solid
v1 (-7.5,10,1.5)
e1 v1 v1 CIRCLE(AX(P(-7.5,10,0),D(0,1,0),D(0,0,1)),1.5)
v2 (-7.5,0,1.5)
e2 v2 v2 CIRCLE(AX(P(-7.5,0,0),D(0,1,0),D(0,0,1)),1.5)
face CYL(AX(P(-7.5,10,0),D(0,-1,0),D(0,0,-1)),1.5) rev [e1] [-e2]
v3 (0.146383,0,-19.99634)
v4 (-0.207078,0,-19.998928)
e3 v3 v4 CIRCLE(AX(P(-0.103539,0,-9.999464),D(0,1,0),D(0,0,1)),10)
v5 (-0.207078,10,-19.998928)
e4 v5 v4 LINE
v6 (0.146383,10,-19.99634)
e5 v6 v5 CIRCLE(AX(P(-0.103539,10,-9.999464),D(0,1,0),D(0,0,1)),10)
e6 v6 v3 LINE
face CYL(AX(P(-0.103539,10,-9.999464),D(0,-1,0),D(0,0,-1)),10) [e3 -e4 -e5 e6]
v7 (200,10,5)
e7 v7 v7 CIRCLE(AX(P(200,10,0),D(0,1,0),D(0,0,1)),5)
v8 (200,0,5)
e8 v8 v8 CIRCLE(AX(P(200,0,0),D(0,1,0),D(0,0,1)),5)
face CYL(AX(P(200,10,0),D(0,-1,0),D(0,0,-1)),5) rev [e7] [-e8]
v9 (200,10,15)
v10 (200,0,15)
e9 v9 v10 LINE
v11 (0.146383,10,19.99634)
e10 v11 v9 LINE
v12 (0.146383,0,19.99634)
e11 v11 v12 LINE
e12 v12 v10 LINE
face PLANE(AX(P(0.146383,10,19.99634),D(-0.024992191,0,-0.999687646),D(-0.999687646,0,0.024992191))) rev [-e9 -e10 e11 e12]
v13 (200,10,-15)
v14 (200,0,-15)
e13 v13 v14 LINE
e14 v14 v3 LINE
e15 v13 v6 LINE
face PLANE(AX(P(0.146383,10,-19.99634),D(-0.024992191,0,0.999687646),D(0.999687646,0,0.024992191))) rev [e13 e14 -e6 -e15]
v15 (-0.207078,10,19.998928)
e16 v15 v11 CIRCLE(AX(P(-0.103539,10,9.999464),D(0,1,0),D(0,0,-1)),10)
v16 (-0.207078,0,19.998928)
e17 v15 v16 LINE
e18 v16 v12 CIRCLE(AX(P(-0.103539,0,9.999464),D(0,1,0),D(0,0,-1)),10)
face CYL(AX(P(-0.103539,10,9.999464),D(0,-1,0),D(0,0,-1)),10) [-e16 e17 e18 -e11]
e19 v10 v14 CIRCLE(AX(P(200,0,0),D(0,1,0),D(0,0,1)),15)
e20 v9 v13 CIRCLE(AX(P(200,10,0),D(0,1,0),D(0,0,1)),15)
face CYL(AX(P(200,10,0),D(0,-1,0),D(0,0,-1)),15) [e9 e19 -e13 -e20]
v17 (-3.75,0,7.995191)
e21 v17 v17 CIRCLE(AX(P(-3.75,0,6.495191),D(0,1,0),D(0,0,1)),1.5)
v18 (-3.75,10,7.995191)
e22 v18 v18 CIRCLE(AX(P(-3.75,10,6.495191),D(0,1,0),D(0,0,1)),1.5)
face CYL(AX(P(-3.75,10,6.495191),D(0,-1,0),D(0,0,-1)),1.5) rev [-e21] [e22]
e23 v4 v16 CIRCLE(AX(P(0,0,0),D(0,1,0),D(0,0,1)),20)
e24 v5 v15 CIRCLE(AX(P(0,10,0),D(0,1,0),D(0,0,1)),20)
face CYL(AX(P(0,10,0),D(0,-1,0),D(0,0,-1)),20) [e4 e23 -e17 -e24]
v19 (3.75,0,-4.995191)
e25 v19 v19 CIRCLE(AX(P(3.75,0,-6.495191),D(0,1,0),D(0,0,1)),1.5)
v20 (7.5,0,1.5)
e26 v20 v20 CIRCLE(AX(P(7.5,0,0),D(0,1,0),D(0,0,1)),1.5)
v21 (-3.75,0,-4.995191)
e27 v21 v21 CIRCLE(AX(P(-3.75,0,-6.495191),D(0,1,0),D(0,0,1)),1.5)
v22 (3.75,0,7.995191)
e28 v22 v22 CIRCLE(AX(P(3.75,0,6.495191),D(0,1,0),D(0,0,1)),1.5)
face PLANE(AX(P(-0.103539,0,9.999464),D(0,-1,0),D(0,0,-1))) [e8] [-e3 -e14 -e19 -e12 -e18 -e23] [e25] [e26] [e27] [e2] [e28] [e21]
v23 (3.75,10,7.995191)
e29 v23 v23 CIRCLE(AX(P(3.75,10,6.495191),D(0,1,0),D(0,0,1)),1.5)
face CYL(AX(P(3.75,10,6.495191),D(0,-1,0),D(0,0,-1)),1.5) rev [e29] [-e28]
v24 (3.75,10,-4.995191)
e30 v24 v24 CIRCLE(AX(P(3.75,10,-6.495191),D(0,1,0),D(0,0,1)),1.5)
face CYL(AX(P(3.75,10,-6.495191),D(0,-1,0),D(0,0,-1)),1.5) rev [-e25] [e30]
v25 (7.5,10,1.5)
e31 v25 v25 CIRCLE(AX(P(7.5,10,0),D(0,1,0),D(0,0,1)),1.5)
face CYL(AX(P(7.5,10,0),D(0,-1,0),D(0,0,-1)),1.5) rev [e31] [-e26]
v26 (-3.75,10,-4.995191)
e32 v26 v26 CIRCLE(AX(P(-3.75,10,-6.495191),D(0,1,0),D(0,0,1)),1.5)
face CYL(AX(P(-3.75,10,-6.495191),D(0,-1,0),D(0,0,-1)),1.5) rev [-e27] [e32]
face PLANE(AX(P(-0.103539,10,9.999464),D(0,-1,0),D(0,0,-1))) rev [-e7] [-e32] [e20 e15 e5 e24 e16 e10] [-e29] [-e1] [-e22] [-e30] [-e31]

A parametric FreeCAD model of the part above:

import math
import FreeCAD as App
import Part
import Sketcher
from FreeCAD import Vector

doc = App.newDocument("Part")
params = doc.addObject("Spreadsheet::Sheet", "Params")
for row, (alias, value) in enumerate([
    ("sketch1_diameter", "3 mm"),
    ("sketch1_diameter2", "10 mm"),
    ("sketch1_radius", "20 mm"),
    ("sketch1_radius2", "15 mm"),
    ("pad1_length", "10 mm"),
], start=1):
    params.set(f"A{row}", alias)
    params.set(f"B{row}", "=" + value)
    params.setAlias(f"B{row}", alias)

body = doc.addObject("PartDesign::Body", "Body")

# Sketch on XZ plane
sketch1 = doc.addObject("Sketcher::SketchObject", "Sketch")
body.addObject(sketch1)
sketch1.AttachmentSupport = (doc.XZ_Plane, [""])
sketch1.MapMode = "FlatFace"
sketch1.addGeometry(Part.LineSegment(Vector(200, -15, 0), Vector(0.15, -20, 0)), False)
sketch1.addGeometry(Part.ArcOfCircle(Part.Circle(Vector(-0.1, -10, 0), Vector(0, 0, 1), 10), math.radians(-90.59), math.radians(-88.57)), False)
sketch1.addGeometry(Part.ArcOfCircle(Part.Circle(Vector(0, 0, 0), Vector(0, 0, 1), 20), math.radians(91), math.radians(269)), False)
sketch1.addGeometry(Part.ArcOfCircle(Part.Circle(Vector(-0.1, 10, 0), Vector(0, 0, 1), 10), math.radians(88.57), math.radians(90.59)), False)
sketch1.addGeometry(Part.LineSegment(Vector(0.15, 20, 0), Vector(200, 15, 0)), False)
sketch1.addGeometry(Part.ArcOfCircle(Part.Circle(Vector(200, 0, 0), Vector(0, 0, 1), 15), math.radians(-90), math.radians(90)), False)
sketch1.addGeometry(Part.Circle(Vector(3.75, 6.5, 0), Vector(0, 0, 1), 1.5), False)
sketch1.addGeometry(Part.Circle(Vector(-3.75, 6.5, 0), Vector(0, 0, 1), 1.5), False)
sketch1.addGeometry(Part.Circle(Vector(200, 0, 0), Vector(0, 0, 1), 5), False)
sketch1.addGeometry(Part.Circle(Vector(7.5, 0, 0), Vector(0, 0, 1), 1.5), False)
sketch1.addGeometry(Part.Circle(Vector(-7.5, 0, 0), Vector(0, 0, 1), 1.5), False)
sketch1.addGeometry(Part.Circle(Vector(3.75, -6.5, 0), Vector(0, 0, 1), 1.5), False)
sketch1.addGeometry(Part.Circle(Vector(-3.75, -6.5, 0), Vector(0, 0, 1), 1.5), False)
sketch1.addConstraint(Sketcher.Constraint("Tangent", 0, 2, 1, 2))
sketch1.addConstraint(Sketcher.Constraint("Tangent", 1, 1, 2, 2))
sketch1.addConstraint(Sketcher.Constraint("Tangent", 2, 1, 3, 2))
sketch1.addConstraint(Sketcher.Constraint("Tangent", 3, 1, 4, 1))
sketch1.addConstraint(Sketcher.Constraint("Coincident", 4, 2, 5, 2))
sketch1.addConstraint(Sketcher.Constraint("Coincident", 5, 1, 0, 1))
sketch1.addConstraint(Sketcher.Constraint("Coincident", 2, 3, -1, 1))
sketch1.addConstraint(Sketcher.Constraint("Coincident", 8, 3, 5, 3))
sketch1.addConstraint(Sketcher.Constraint("Equal", 1, 3))
sketch1.addConstraint(Sketcher.Constraint("Equal", 6, 7))
sketch1.addConstraint(Sketcher.Constraint("Equal", 7, 9))
sketch1.addConstraint(Sketcher.Constraint("Equal", 9, 10))
sketch1.addConstraint(Sketcher.Constraint("Equal", 10, 11))
sketch1.addConstraint(Sketcher.Constraint("Equal", 11, 12))
sketch1.addConstraint(Sketcher.Constraint("Symmetric", 9, 3, 10, 3, -1, 1))
sketch1.addConstraint(Sketcher.Constraint("Symmetric", 7, 3, 11, 3, -1, 1))
sketch1.addConstraint(Sketcher.Constraint("Symmetric", 6, 3, 12, 3, -1, 1))
sketch1.addConstraint(Sketcher.Constraint("Symmetric", 6, 3, 7, 3, -2))
sketch1.addConstraint(Sketcher.Constraint("Symmetric", 4, 2, 5, 1, -1))
sketch1.addConstraint(Sketcher.Constraint("PointOnObject", 9, 3, -1))
sketch1.addConstraint(Sketcher.Constraint("Vertical", 1, 3, 3, 3))
sketch1.addConstraint(Sketcher.Constraint("Vertical", 8, 3, 4, 2))
sketch1.addConstraint(Sketcher.Constraint("Diameter", 6, 3.0))
sketch1.addConstraint(Sketcher.Constraint("Diameter", 8, 10.0))
sketch1.addConstraint(Sketcher.Constraint("Radius", 2, 20.0))
sketch1.addConstraint(Sketcher.Constraint("Radius", 5, 15.0))
sketch1.addConstraint(Sketcher.Constraint("DistanceX", -1, 1, 5, 3, 200.0))
sketch1.addConstraint(Sketcher.Constraint("DistanceX", -1, 1, 9, 3, 7.5))
sketch1.addConstraint(Sketcher.Constraint("DistanceX", 7, 3, 6, 3, 7.5))
sketch1.addConstraint(Sketcher.Constraint("Radius", 1, 10.000004))
sketch1.addConstraint(Sketcher.Constraint("Distance", 0, 199.916062))
sketch1.addConstraint(Sketcher.Constraint("DistanceY", -1, 1, 6, 3, 6.495191))
sketch1.setExpression("Constraints[22]", "Params.sketch1_diameter")
sketch1.setExpression("Constraints[23]", "Params.sketch1_diameter2")
sketch1.setExpression("Constraints[24]", "Params.sketch1_radius")
sketch1.setExpression("Constraints[25]", "Params.sketch1_radius2")
pad1 = doc.addObject("PartDesign::Pad", "Pad")
body.addObject(pad1)
pad1.Profile = sketch1
pad1.setExpression("Length", "Params.pad1_length")
pad1.Reversed = True

doc.recompute()
